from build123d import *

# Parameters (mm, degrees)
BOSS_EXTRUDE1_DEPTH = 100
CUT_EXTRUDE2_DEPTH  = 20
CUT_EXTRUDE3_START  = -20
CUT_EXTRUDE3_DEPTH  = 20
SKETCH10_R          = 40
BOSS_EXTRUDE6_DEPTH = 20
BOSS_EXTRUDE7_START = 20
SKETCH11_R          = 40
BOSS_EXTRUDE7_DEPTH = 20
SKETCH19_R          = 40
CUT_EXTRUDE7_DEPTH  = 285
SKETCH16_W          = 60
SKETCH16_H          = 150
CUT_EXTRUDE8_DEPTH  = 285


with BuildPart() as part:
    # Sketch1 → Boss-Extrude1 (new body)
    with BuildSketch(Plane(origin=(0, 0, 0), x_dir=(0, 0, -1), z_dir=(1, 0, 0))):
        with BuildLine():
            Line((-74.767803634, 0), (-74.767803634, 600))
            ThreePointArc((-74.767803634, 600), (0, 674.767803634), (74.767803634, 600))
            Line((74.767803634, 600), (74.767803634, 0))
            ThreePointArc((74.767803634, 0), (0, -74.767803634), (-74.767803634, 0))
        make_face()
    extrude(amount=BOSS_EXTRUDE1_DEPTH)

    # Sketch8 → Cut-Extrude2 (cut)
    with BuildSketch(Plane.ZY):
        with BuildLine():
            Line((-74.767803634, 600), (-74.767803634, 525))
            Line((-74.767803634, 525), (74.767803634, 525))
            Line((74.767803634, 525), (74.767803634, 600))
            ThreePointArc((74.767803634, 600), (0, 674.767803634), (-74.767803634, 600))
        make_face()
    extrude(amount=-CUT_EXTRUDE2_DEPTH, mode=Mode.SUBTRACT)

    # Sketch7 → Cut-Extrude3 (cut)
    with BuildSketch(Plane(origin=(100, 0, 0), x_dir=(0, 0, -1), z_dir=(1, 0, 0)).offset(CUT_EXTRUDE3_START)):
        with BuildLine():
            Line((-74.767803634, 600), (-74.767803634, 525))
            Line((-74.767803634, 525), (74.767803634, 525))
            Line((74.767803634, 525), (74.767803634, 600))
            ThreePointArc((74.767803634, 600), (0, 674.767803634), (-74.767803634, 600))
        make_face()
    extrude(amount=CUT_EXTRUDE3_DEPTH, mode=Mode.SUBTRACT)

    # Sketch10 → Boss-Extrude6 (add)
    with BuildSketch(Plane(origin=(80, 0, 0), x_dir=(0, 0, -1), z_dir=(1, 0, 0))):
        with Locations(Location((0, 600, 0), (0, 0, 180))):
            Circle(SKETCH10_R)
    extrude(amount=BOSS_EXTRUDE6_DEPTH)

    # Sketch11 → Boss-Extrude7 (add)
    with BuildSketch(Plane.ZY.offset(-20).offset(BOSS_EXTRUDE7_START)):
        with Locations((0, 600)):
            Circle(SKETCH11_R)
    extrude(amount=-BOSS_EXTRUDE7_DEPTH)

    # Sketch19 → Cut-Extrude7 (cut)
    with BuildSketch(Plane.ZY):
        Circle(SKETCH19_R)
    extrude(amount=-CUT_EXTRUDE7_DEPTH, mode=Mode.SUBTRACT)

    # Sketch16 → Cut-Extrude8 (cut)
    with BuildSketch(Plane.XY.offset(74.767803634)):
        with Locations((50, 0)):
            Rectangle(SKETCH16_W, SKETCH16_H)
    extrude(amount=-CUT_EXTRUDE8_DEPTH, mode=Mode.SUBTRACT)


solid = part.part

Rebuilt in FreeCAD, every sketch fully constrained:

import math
import FreeCAD as App
import Part
import Sketcher

V = App.Vector

doc = App.newDocument("Part")
body = doc.addObject("PartDesign::Body", "Body")

# Sketch on YZ plane
sketch1 = doc.addObject("Sketcher::SketchObject", "Sketch")
body.addObject(sketch1)
sketch1.AttachmentSupport = (doc.YZ_Plane, [""])
sketch1.MapMode = "FlatFace"
sketch1.addGeometry([
    Part.LineSegment(V(600, 75, 0), V(0, 75, 0)),
    Part.ArcOfCircle(Part.Circle(V(0, 0, 0), V(0, 0, 1), 75), math.radians(90), math.radians(270)),
    Part.LineSegment(V(0, -75, 0), V(600, -75, 0)),
    Part.ArcOfCircle(Part.Circle(V(600, 0, 0), V(0, 0, 1), 75), math.radians(-90), math.radians(90)),
], False)
sketch1.addConstraint([
    Sketcher.Constraint("Tangent", 0, 2, 1, 1),
    Sketcher.Constraint("Tangent", 1, 2, 2, 1),
    Sketcher.Constraint("Tangent", 2, 2, 3, 1),
    Sketcher.Constraint("Tangent", 3, 2, 0, 1),
    Sketcher.Constraint("Horizontal", 0),
    Sketcher.Constraint("Horizontal", 2),
    Sketcher.Constraint("Coincident", 1, 3, -1, 1),
    Sketcher.Constraint("DistanceX", 0, 2, 0, 1, 600.0),
    Sketcher.Constraint("Radius", 1, 74.767804),
])
pad1 = doc.addObject("PartDesign::Pad", "Pad")
body.addObject(pad1)
pad1.Profile = sketch1
pad1.Length = 100

# Sketch on YZ plane
sketch2 = doc.addObject("Sketcher::SketchObject", "Sketch001")
body.addObject(sketch2)
sketch2.AttachmentSupport = (doc.YZ_Plane, [""])
sketch2.MapMode = "FlatFace"
sketch2.addGeometry([
    Part.LineSegment(V(600, -75, 0), V(525, -75, 0)),
    Part.LineSegment(V(525, -75, 0), V(525, 75, 0)),
    Part.LineSegment(V(525, 75, 0), V(600, 75, 0)),
    Part.ArcOfCircle(Part.Circle(V(600, 0, 0), V(0, 0, 1), 75), math.radians(-90), math.radians(90)),
], False)
sketch2.addConstraint([
    Sketcher.Constraint("Coincident", 0, 2, 1, 1),
    Sketcher.Constraint("Coincident", 1, 2, 2, 1),
    Sketcher.Constraint("Tangent", 2, 2, 3, 2),
    Sketcher.Constraint("Tangent", 3, 1, 0, 1),
    Sketcher.Constraint("Horizontal", 0),
    Sketcher.Constraint("Vertical", 1),
    Sketcher.Constraint("Horizontal", 2),
    Sketcher.Constraint("PointOnObject", 3, 3, -1),
    Sketcher.Constraint("DistanceX", 0, 2, 0, 1, 75.0),
    Sketcher.Constraint("DistanceX", -1, 1, 3, 3, 600.0),
    Sketcher.Constraint("Radius", 3, 74.767804),
])
pocket1 = doc.addObject("PartDesign::Pocket", "Pocket")
body.addObject(pocket1)
pocket1.Profile = sketch2
pocket1.Length = 20
pocket1.Reversed = True

# Sketch on YZ plane
sketch3 = doc.addObject("Sketcher::SketchObject", "Sketch002")
body.addObject(sketch3)
sketch3.AttachmentSupport = (doc.YZ_Plane, [""])
sketch3.MapMode = "FlatFace"
sketch3.AttachmentOffset = App.Placement(V(0, 0, 80), App.Rotation())
sketch3.addGeometry([
    Part.LineSegment(V(600, 75, 0), V(525, 75, 0)),
    Part.LineSegment(V(525, 75, 0), V(525, -75, 0)),
    Part.LineSegment(V(525, -75, 0), V(600, -75, 0)),
    Part.ArcOfCircle(Part.Circle(V(600, 0, 0), V(0, 0, 1), 75), math.radians(-90), math.radians(90)),
], False)
sketch3.addConstraint([
    Sketcher.Constraint("Coincident", 0, 2, 1, 1),
    Sketcher.Constraint("Coincident", 1, 2, 2, 1),
    Sketcher.Constraint("Tangent", 2, 2, 3, 1),
    Sketcher.Constraint("Tangent", 3, 2, 0, 1),
    Sketcher.Constraint("Horizontal", 0),
    Sketcher.Constraint("Vertical", 1),
    Sketcher.Constraint("Horizontal", 2),
    Sketcher.Constraint("PointOnObject", 3, 3, -1),
    Sketcher.Constraint("DistanceX", 0, 2, 0, 1, 75.0),
    Sketcher.Constraint("DistanceX", -1, 1, 3, 3, 600.0),
    Sketcher.Constraint("Radius", 3, 74.767804),
])
pocket2 = doc.addObject("PartDesign::Pocket", "Pocket001")
body.addObject(pocket2)
pocket2.Profile = sketch3
pocket2.Length = 20
pocket2.Reversed = True

# Sketch on YZ plane
sketch4 = doc.addObject("Sketcher::SketchObject", "Sketch003")
body.addObject(sketch4)
sketch4.AttachmentSupport = (doc.YZ_Plane, [""])
sketch4.MapMode = "FlatFace"
sketch4.AttachmentOffset = App.Placement(V(0, 0, 80), App.Rotation())
sketch4.addGeometry(Part.Circle(V(600, 0, 0), V(0, 0, 1), 40), False)
sketch4.addConstraint([
    Sketcher.Constraint("PointOnObject", 0, 3, -1),
    Sketcher.Constraint("Diameter", 0, 80.0),
    Sketcher.Constraint("DistanceX", -1, 1, 0, 3, 600.0),
])
pad2 = doc.addObject("PartDesign::Pad", "Pad001")
body.addObject(pad2)
pad2.Profile = sketch4
pad2.Length = 20

# Sketch on YZ plane
sketch5 = doc.addObject("Sketcher::SketchObject", "Sketch004")
body.addObject(sketch5)
sketch5.AttachmentSupport = (doc.YZ_Plane, [""])
sketch5.MapMode = "FlatFace"
sketch5.addGeometry(Part.Circle(V(600, 0, 0), V(0, 0, 1), 40), False)
sketch5.addConstraint([
    Sketcher.Constraint("PointOnObject", 0, 3, -1),
    Sketcher.Constraint("Diameter", 0, 80.0),
    Sketcher.Constraint("DistanceX", -1, 1, 0, 3, 600.0),
])
pad3 = doc.addObject("PartDesign::Pad", "Pad002")
body.addObject(pad3)
pad3.Profile = sketch5
pad3.Length = 20

# Sketch on YZ plane
sketch6 = doc.addObject("Sketcher::SketchObject", "Sketch005")
body.addObject(sketch6)
sketch6.AttachmentSupport = (doc.YZ_Plane, [""])
sketch6.MapMode = "FlatFace"
sketch6.addGeometry(Part.Circle(V(0, 0, 0), V(0, 0, 1), 40), False)
sketch6.addConstraint([
    Sketcher.Constraint("Coincident", 0, 3, -1, 1),
    Sketcher.Constraint("Diameter", 0, 80.0),
])
pocket3 = doc.addObject("PartDesign::Pocket", "Pocket002")
body.addObject(pocket3)
pocket3.Profile = sketch6
pocket3.Length = 285
pocket3.Reversed = True

# Sketch on XY plane
sketch7 = doc.addObject("Sketcher::SketchObject", "Sketch006")
body.addObject(sketch7)
sketch7.AttachmentSupport = (doc.XY_Plane, [""])
sketch7.MapMode = "FlatFace"
sketch7.AttachmentOffset = App.Placement(V(0, 0, 74.767804), App.Rotation())
sketch7.addGeometry([
    Part.LineSegment(V(20, 75, 0), V(20, -75, 0)),
    Part.LineSegment(V(20, -75, 0), V(80, -75, 0)),
    Part.LineSegment(V(80, -75, 0), V(80, 75, 0)),
    Part.LineSegment(V(80, 75, 0), V(20, 75, 0)),
], False)
sketch7.addConstraint([
    Sketcher.Constraint("Coincident", 0, 2, 1, 1),
    Sketcher.Constraint("Coincident", 1, 2, 2, 1),
    Sketcher.Constraint("Coincident", 2, 2, 3, 1),
    Sketcher.Constraint("Coincident", 3, 2, 0, 1),
    Sketcher.Constraint("Vertical", 0),
    Sketcher.Constraint("Horizontal", 1),
    Sketcher.Constraint("Vertical", 2),
    Sketcher.Constraint("Horizontal", 3),
    Sketcher.Constraint("DistanceX", 1, 1, 1, 2, 60.0),
    Sketcher.Constraint("DistanceY", 0, 2, 0, 1, 150.0),
    Sketcher.Constraint("DistanceX", -1, 1, 0, 2, 20.0),
    Sketcher.Constraint("DistanceY", 0, 2, -1, 1, 75.0),
])
pocket4 = doc.addObject("PartDesign::Pocket", "Pocket003")
body.addObject(pocket4)
pocket4.Profile = sketch7
pocket4.Length = 285

doc.recompute()
